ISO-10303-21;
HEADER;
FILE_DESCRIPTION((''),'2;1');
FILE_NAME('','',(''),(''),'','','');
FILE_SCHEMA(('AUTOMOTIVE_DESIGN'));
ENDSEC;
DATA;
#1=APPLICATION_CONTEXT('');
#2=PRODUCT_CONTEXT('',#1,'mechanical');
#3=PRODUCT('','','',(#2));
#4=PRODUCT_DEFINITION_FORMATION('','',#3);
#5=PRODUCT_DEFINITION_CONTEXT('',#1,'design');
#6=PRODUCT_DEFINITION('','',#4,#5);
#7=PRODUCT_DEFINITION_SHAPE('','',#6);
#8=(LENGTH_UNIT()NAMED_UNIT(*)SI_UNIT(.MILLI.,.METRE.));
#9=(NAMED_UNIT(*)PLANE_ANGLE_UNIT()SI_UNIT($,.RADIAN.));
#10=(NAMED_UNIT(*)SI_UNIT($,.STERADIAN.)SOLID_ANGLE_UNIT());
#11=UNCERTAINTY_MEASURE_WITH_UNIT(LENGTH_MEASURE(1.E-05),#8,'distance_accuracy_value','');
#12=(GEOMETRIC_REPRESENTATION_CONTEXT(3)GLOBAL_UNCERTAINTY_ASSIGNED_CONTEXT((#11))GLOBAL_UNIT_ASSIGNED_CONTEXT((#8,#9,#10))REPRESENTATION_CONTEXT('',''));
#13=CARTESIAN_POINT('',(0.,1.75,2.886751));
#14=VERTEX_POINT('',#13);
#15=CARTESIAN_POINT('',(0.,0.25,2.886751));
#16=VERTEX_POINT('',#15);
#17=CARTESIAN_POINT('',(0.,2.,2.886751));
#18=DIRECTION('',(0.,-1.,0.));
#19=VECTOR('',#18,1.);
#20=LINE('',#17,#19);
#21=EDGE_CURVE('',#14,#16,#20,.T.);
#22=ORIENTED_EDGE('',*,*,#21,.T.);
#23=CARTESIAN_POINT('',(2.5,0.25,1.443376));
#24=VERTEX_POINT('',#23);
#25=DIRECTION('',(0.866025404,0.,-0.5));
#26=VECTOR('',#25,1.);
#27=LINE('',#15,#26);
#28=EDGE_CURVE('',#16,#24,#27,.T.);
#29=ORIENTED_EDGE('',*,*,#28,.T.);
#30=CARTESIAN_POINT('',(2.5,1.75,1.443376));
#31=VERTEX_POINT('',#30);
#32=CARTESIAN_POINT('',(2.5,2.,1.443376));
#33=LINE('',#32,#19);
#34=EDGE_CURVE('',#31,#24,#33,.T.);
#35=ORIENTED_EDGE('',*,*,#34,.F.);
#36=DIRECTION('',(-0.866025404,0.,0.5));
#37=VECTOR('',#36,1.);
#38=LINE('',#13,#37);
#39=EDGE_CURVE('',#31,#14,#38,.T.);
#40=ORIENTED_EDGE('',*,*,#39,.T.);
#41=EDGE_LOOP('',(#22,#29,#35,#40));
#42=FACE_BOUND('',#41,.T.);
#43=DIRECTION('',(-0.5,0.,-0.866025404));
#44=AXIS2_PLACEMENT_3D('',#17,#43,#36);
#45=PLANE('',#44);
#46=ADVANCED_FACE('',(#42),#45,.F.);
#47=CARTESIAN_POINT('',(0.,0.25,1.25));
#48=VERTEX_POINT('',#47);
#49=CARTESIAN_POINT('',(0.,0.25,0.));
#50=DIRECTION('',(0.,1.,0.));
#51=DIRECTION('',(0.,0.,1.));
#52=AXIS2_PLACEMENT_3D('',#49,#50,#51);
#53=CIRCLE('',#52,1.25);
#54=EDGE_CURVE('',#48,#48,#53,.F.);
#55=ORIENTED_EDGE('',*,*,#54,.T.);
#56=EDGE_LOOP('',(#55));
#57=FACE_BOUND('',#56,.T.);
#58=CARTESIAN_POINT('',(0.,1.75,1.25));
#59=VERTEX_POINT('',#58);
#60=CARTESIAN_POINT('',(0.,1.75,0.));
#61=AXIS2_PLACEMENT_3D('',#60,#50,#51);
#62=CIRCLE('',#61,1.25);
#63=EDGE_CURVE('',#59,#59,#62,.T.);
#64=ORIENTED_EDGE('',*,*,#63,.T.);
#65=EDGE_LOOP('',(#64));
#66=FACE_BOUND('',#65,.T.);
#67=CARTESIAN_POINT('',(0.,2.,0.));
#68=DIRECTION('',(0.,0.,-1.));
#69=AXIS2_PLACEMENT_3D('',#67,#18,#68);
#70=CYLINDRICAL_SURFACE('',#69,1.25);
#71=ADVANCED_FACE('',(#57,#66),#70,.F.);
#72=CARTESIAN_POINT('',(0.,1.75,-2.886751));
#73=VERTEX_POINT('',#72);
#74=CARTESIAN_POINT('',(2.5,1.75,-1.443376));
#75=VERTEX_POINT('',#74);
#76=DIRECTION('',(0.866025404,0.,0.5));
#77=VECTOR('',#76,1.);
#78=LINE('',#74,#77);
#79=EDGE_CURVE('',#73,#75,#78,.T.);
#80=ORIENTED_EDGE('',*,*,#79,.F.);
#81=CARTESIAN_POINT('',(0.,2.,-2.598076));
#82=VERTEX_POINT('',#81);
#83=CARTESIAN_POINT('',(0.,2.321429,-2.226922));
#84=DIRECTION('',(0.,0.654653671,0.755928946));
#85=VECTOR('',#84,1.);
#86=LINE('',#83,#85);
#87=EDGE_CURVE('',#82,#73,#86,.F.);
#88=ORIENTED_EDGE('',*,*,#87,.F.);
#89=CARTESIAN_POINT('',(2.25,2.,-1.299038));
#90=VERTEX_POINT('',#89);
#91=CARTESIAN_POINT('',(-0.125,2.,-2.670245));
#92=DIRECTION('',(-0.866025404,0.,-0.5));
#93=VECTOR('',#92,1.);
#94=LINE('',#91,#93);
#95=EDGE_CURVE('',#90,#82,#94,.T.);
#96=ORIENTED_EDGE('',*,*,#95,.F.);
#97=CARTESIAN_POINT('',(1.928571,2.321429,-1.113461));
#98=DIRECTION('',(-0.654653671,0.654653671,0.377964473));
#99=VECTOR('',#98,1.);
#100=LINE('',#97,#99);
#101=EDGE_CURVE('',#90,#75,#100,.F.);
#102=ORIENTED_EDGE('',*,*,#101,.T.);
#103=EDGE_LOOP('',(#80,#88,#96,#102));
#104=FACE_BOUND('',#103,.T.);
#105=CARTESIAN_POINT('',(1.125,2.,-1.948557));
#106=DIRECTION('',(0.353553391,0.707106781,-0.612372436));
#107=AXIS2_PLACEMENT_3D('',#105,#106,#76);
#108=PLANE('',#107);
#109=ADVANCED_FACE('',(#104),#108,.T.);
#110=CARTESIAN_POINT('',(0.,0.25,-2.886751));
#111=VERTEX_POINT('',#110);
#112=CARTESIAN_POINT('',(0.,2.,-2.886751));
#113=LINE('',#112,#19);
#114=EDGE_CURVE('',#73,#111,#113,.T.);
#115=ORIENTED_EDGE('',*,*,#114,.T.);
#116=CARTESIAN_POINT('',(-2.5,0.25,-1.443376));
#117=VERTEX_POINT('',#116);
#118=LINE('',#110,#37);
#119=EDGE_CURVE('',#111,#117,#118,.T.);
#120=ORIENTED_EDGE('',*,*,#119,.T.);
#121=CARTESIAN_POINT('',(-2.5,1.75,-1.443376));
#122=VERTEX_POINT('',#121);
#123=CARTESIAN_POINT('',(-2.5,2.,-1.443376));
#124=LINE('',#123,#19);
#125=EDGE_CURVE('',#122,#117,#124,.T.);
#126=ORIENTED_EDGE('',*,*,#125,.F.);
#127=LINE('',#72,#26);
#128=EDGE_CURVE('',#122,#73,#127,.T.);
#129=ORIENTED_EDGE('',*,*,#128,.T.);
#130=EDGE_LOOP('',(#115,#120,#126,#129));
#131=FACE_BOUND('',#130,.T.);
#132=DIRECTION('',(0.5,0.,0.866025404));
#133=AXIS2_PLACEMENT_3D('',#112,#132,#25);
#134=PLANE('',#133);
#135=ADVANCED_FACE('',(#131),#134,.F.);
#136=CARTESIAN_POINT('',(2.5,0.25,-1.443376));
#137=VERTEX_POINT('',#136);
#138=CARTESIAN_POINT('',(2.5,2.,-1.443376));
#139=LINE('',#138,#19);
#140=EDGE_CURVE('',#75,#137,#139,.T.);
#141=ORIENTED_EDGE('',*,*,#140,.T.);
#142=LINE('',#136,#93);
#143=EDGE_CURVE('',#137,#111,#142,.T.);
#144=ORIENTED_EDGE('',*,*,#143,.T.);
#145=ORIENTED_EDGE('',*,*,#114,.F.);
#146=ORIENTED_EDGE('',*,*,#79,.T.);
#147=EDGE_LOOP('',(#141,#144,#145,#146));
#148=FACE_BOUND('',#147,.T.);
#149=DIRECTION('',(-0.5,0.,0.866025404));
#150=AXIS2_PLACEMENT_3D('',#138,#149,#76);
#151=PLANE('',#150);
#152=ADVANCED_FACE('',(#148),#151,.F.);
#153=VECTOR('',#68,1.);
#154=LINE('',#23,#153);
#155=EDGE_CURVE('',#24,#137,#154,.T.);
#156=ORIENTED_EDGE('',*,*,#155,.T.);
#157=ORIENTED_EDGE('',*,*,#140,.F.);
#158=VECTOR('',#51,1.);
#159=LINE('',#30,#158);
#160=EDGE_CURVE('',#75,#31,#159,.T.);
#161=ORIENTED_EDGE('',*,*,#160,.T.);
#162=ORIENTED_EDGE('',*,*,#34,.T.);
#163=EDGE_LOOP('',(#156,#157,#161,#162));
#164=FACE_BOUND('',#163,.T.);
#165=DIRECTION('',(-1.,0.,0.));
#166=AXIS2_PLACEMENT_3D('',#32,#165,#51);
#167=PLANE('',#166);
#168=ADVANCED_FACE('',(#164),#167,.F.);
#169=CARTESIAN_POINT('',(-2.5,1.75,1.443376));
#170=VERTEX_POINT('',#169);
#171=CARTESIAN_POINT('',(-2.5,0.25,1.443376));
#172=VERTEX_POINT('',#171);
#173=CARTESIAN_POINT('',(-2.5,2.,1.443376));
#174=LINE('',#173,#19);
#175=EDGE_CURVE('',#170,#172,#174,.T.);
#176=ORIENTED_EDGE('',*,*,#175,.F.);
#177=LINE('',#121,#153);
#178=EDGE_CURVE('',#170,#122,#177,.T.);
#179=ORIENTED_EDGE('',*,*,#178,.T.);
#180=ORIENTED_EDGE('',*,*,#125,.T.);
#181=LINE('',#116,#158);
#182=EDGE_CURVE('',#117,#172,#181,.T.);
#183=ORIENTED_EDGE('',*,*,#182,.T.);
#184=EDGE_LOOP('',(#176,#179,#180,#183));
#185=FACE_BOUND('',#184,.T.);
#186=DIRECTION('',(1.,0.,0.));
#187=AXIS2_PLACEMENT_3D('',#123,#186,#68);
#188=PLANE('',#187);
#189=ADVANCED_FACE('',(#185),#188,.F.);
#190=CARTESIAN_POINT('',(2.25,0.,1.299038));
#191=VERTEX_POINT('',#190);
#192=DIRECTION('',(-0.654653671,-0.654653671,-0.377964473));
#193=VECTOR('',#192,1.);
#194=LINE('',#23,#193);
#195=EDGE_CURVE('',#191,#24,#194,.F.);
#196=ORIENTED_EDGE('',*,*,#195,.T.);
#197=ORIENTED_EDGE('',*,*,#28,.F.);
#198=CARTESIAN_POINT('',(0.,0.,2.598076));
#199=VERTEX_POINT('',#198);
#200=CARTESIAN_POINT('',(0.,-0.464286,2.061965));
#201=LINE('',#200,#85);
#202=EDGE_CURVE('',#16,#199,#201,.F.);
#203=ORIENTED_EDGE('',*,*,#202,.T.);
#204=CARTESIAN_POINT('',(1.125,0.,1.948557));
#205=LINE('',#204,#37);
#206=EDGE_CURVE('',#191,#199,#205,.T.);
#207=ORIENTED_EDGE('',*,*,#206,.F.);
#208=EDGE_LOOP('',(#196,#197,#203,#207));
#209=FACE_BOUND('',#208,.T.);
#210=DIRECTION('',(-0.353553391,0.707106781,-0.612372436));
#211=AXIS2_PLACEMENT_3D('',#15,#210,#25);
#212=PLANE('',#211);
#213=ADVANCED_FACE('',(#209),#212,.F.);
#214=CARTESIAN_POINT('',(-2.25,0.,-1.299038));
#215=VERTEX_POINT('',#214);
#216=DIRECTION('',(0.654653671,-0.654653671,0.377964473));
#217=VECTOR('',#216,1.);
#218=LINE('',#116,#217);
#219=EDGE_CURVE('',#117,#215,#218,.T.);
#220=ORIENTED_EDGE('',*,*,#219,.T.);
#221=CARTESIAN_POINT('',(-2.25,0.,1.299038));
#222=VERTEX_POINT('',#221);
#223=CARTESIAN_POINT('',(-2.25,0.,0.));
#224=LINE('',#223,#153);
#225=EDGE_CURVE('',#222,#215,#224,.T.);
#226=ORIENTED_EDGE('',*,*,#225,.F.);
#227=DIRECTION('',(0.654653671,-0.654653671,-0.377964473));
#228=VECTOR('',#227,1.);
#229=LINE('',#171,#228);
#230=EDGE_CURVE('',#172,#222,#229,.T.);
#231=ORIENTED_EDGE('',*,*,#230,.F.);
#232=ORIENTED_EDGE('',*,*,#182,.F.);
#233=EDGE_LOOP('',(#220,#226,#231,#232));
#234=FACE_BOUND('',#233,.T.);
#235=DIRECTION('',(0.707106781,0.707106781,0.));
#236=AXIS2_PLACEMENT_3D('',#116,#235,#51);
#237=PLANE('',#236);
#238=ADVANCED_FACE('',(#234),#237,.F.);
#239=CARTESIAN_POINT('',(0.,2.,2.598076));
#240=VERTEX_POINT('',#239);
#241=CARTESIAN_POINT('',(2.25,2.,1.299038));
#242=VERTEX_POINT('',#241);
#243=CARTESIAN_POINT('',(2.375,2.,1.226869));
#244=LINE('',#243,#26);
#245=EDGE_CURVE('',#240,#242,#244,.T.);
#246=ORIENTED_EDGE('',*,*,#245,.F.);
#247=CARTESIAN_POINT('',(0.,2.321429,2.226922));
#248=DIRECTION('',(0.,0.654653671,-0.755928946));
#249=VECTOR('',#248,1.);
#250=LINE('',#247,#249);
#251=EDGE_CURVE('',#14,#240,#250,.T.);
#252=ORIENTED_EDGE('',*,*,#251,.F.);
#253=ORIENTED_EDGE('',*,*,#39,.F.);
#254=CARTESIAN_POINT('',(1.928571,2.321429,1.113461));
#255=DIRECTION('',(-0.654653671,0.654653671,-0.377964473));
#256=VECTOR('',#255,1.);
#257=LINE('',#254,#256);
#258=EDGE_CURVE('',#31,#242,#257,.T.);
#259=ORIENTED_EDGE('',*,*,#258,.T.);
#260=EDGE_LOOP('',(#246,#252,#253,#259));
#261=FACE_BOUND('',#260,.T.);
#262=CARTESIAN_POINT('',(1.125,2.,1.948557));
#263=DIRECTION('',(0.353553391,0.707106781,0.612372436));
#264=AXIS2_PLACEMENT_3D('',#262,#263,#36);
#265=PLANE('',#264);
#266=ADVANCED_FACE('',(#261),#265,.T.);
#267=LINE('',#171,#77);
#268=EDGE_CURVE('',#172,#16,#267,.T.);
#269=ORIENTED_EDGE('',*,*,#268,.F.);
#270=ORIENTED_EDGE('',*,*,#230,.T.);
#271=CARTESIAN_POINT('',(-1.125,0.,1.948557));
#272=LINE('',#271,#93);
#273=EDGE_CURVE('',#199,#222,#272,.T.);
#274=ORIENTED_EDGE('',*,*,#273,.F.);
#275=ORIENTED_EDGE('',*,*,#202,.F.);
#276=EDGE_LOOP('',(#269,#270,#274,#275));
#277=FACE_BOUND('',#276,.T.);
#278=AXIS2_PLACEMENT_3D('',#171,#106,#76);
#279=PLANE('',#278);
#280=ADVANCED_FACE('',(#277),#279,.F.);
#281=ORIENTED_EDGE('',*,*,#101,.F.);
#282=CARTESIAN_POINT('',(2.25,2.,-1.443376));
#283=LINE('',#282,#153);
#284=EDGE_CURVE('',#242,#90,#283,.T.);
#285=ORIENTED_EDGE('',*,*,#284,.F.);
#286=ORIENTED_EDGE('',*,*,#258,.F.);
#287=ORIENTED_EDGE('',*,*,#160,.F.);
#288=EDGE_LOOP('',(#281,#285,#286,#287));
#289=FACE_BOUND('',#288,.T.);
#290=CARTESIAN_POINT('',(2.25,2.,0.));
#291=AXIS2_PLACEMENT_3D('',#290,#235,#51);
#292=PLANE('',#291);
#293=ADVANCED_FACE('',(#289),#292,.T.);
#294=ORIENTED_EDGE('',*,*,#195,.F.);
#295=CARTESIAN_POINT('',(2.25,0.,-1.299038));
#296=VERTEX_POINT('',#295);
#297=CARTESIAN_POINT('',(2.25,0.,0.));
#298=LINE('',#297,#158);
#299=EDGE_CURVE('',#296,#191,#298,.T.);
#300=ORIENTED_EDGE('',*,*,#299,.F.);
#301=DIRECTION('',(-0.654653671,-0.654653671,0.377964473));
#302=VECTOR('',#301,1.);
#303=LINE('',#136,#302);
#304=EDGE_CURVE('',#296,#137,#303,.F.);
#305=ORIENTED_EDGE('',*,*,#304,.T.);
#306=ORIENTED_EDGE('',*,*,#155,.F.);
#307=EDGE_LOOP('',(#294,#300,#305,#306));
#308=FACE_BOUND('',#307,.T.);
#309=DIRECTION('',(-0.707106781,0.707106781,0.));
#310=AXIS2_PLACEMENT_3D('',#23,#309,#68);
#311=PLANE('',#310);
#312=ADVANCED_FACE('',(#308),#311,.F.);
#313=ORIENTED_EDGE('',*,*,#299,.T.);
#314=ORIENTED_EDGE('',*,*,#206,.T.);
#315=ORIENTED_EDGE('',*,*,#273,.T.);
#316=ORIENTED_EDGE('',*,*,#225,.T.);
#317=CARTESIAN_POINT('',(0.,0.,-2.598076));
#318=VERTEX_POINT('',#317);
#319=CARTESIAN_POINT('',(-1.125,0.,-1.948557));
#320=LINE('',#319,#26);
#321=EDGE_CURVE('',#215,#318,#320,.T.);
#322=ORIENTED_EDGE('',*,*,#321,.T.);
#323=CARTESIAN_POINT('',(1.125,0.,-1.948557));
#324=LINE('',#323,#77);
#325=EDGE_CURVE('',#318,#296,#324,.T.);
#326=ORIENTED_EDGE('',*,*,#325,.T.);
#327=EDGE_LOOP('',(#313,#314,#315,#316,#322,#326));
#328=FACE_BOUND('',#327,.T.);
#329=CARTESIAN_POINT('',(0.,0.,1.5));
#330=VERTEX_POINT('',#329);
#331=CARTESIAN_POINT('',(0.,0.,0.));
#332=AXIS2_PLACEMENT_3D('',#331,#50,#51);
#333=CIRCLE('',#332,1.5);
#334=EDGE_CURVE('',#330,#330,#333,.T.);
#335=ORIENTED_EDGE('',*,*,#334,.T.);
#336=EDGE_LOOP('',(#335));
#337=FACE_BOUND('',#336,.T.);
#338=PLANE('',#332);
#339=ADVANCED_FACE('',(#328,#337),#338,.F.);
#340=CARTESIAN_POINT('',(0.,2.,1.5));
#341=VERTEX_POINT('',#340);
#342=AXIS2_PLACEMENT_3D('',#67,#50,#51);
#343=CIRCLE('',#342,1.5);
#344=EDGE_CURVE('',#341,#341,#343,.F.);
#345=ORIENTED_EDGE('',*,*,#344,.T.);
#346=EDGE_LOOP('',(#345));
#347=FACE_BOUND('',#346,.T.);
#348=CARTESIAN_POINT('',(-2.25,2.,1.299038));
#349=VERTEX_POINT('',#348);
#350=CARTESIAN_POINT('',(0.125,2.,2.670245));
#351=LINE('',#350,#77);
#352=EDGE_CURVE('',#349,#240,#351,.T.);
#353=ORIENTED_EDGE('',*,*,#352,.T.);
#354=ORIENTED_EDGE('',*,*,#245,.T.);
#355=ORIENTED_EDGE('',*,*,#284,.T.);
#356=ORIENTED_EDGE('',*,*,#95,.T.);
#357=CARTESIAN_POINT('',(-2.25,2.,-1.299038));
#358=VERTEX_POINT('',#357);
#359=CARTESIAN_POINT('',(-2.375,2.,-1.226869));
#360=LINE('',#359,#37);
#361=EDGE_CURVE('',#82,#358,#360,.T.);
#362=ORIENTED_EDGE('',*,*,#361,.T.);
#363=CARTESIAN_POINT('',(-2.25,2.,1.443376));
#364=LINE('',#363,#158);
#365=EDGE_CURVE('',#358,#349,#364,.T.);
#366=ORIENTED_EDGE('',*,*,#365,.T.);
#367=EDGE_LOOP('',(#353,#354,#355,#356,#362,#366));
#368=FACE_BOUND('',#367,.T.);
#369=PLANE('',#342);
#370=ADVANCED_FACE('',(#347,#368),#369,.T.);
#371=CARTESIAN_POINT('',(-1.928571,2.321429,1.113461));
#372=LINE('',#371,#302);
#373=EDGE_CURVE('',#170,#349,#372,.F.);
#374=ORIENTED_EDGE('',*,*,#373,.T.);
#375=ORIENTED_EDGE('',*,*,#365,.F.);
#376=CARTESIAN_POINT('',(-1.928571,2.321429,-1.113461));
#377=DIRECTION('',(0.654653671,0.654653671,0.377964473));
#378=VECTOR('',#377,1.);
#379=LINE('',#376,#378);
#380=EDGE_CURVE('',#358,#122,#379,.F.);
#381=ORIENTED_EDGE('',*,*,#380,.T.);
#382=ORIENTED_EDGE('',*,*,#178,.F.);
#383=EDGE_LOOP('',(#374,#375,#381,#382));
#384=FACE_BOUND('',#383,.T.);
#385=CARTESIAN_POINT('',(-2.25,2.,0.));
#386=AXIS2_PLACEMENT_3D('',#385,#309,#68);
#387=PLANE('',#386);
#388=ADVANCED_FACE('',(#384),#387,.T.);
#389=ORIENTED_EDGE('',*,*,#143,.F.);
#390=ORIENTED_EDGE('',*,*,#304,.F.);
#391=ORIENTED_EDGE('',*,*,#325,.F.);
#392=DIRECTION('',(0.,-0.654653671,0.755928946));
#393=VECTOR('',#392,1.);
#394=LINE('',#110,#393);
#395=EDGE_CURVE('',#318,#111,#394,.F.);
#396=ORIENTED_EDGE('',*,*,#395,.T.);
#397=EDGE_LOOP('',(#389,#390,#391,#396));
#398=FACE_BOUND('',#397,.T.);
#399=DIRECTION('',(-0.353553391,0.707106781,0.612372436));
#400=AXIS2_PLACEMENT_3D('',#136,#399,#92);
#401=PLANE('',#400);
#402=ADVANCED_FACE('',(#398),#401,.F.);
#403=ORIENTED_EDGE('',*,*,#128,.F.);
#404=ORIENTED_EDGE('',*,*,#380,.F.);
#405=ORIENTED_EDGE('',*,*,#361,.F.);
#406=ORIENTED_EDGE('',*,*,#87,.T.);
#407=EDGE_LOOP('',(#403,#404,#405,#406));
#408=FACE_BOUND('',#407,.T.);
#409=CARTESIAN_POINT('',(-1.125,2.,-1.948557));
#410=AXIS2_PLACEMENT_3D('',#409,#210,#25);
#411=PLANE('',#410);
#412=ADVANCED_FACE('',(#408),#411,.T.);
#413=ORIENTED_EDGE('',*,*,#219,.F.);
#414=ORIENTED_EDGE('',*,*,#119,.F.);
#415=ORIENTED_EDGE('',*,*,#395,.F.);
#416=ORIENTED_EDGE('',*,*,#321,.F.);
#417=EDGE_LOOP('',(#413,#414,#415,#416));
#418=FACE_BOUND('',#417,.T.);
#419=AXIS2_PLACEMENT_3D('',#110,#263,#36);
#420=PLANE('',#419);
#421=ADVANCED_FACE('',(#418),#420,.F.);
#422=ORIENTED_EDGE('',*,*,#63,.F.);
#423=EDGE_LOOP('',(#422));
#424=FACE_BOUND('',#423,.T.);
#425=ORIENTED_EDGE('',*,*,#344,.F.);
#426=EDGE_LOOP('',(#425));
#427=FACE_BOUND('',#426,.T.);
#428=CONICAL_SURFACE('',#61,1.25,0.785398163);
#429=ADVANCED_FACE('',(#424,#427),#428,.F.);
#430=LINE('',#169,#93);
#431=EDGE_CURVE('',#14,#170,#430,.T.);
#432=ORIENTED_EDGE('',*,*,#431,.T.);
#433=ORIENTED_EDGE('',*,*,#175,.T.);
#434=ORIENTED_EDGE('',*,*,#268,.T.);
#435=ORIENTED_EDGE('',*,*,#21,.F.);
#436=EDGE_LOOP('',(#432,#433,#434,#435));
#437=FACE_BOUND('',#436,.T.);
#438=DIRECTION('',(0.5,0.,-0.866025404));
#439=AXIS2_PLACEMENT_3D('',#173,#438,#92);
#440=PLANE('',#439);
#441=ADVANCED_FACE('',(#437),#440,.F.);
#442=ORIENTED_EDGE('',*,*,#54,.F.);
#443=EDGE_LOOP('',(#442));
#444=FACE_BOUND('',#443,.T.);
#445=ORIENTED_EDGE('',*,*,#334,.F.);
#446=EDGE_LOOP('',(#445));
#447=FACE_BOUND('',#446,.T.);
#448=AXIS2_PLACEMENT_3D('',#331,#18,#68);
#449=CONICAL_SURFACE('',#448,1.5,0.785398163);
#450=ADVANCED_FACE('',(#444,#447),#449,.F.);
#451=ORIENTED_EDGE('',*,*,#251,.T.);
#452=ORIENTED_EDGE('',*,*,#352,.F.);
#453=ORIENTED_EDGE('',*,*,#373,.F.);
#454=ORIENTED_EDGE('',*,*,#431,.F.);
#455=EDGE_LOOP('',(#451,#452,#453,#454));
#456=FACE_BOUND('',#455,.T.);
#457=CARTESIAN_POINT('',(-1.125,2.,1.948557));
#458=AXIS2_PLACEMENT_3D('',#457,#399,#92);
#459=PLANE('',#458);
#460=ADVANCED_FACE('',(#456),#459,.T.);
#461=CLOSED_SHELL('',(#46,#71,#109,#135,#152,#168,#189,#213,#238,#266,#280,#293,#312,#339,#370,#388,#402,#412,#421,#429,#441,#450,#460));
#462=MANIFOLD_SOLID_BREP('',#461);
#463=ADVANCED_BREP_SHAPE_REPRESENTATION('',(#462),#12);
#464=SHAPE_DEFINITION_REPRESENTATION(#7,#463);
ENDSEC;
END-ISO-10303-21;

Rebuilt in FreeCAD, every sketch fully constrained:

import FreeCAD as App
import Part
import Sketcher
from FreeCAD import Vector
Q = App.Units.Quantity


def edges_at(feature, points):
    """Names of the edges that pass closest to the given points."""
    edges = feature.Shape.Edges
    near = lambda p: min(range(len(edges)), key=lambda i: edges[i].distToShape(Part.Vertex(*p))[0])
    return sorted({f"Edge{near(p) + 1}" for p in points})


def add_polygon(sketch, points):
    """Adds a closed chain of lines whose ends are joined by coincident constraints."""
    first, n = sketch.GeometryCount, len(points)
    for a, b in zip(points, points[1:] + points[:1]):
        sketch.addGeometry(Part.LineSegment(App.Vector(*a, 0), App.Vector(*b, 0)), False)
    for i in range(n):
        sketch.addConstraint(Sketcher.Constraint("Coincident", first + i, 2, first + (i + 1) % n, 1))

doc = App.newDocument("Part")
body = doc.addObject("PartDesign::Body", "Body")

sketch1 = doc.addObject("Sketcher::SketchObject", "Sketch")
body.addObject(sketch1)
sketch1.AttachmentSupport = (doc.XZ_Plane, [""])
sketch1.MapMode = "FlatFace"
add_polygon(sketch1, [(0, 2.9), (2.5, 1.4), (2.5, -1.4), (0, -2.9), (-2.5, -1.4), (-2.5, 1.4)])
sketch1.addGeometry(Part.Circle(Vector(0, 0, 0), Vector(0, 0, 1), 1.2), False)
sketch1.addConstraint([
    Sketcher.Constraint("Vertical", 1),
    Sketcher.Constraint("Vertical", 4),
    Sketcher.Constraint("Coincident", 6, 3, -1, 1),
    Sketcher.Constraint("Symmetric", 0, 2, 3, 2, -1, 1),
    Sketcher.Constraint("Symmetric", 2, 2, 5, 2, -1, 1),
    Sketcher.Constraint("PointOnObject", 2, 2, -2),
    Sketcher.Constraint("Parallel", 2, 5),
    Sketcher.Constraint("Horizontal", 1, 2, 3, 2),
    Sketcher.Constraint("Diameter", 6, 2.5),
    Sketcher.Constraint("Angle", 0, Q("-30 deg")),
    Sketcher.Constraint("DistanceX", 3, 2, 1, 2, 5.0),
    Sketcher.Constraint("DistanceY", 1, 2, 1, 1, 2.886751),
])
pad1 = doc.addObject("PartDesign::Pad", "Pad")
body.addObject(pad1)
pad1.Profile = sketch1
pad1.Length = 2
pad1.Reversed = True
doc.recompute()

chamfer = doc.addObject("PartDesign::Chamfer", "Chamfer")
body.addObject(chamfer)
chamfer.Base = (pad1, edges_at(pad1, [
    (2.5, 2, 0),
    (1.25, 2, -2.165),
    (-1.25, 0, 0),
    (-1.25, 2, 0),
    (-1.25, 2, -2.165),
    (-2.5, 2, 0),
    (-1.25, 2, 2.165),
    (-2.5, 0, 0),
    (-1.25, 0, -2.165),
    (1.25, 0, -2.165),
    (2.5, 0, 0),
    (1.25, 0, 2.165),
    (-1.25, 0, 2.165),
    (1.25, 2, 2.165),
]))
chamfer.Size = 0.25

doc.recompute()
